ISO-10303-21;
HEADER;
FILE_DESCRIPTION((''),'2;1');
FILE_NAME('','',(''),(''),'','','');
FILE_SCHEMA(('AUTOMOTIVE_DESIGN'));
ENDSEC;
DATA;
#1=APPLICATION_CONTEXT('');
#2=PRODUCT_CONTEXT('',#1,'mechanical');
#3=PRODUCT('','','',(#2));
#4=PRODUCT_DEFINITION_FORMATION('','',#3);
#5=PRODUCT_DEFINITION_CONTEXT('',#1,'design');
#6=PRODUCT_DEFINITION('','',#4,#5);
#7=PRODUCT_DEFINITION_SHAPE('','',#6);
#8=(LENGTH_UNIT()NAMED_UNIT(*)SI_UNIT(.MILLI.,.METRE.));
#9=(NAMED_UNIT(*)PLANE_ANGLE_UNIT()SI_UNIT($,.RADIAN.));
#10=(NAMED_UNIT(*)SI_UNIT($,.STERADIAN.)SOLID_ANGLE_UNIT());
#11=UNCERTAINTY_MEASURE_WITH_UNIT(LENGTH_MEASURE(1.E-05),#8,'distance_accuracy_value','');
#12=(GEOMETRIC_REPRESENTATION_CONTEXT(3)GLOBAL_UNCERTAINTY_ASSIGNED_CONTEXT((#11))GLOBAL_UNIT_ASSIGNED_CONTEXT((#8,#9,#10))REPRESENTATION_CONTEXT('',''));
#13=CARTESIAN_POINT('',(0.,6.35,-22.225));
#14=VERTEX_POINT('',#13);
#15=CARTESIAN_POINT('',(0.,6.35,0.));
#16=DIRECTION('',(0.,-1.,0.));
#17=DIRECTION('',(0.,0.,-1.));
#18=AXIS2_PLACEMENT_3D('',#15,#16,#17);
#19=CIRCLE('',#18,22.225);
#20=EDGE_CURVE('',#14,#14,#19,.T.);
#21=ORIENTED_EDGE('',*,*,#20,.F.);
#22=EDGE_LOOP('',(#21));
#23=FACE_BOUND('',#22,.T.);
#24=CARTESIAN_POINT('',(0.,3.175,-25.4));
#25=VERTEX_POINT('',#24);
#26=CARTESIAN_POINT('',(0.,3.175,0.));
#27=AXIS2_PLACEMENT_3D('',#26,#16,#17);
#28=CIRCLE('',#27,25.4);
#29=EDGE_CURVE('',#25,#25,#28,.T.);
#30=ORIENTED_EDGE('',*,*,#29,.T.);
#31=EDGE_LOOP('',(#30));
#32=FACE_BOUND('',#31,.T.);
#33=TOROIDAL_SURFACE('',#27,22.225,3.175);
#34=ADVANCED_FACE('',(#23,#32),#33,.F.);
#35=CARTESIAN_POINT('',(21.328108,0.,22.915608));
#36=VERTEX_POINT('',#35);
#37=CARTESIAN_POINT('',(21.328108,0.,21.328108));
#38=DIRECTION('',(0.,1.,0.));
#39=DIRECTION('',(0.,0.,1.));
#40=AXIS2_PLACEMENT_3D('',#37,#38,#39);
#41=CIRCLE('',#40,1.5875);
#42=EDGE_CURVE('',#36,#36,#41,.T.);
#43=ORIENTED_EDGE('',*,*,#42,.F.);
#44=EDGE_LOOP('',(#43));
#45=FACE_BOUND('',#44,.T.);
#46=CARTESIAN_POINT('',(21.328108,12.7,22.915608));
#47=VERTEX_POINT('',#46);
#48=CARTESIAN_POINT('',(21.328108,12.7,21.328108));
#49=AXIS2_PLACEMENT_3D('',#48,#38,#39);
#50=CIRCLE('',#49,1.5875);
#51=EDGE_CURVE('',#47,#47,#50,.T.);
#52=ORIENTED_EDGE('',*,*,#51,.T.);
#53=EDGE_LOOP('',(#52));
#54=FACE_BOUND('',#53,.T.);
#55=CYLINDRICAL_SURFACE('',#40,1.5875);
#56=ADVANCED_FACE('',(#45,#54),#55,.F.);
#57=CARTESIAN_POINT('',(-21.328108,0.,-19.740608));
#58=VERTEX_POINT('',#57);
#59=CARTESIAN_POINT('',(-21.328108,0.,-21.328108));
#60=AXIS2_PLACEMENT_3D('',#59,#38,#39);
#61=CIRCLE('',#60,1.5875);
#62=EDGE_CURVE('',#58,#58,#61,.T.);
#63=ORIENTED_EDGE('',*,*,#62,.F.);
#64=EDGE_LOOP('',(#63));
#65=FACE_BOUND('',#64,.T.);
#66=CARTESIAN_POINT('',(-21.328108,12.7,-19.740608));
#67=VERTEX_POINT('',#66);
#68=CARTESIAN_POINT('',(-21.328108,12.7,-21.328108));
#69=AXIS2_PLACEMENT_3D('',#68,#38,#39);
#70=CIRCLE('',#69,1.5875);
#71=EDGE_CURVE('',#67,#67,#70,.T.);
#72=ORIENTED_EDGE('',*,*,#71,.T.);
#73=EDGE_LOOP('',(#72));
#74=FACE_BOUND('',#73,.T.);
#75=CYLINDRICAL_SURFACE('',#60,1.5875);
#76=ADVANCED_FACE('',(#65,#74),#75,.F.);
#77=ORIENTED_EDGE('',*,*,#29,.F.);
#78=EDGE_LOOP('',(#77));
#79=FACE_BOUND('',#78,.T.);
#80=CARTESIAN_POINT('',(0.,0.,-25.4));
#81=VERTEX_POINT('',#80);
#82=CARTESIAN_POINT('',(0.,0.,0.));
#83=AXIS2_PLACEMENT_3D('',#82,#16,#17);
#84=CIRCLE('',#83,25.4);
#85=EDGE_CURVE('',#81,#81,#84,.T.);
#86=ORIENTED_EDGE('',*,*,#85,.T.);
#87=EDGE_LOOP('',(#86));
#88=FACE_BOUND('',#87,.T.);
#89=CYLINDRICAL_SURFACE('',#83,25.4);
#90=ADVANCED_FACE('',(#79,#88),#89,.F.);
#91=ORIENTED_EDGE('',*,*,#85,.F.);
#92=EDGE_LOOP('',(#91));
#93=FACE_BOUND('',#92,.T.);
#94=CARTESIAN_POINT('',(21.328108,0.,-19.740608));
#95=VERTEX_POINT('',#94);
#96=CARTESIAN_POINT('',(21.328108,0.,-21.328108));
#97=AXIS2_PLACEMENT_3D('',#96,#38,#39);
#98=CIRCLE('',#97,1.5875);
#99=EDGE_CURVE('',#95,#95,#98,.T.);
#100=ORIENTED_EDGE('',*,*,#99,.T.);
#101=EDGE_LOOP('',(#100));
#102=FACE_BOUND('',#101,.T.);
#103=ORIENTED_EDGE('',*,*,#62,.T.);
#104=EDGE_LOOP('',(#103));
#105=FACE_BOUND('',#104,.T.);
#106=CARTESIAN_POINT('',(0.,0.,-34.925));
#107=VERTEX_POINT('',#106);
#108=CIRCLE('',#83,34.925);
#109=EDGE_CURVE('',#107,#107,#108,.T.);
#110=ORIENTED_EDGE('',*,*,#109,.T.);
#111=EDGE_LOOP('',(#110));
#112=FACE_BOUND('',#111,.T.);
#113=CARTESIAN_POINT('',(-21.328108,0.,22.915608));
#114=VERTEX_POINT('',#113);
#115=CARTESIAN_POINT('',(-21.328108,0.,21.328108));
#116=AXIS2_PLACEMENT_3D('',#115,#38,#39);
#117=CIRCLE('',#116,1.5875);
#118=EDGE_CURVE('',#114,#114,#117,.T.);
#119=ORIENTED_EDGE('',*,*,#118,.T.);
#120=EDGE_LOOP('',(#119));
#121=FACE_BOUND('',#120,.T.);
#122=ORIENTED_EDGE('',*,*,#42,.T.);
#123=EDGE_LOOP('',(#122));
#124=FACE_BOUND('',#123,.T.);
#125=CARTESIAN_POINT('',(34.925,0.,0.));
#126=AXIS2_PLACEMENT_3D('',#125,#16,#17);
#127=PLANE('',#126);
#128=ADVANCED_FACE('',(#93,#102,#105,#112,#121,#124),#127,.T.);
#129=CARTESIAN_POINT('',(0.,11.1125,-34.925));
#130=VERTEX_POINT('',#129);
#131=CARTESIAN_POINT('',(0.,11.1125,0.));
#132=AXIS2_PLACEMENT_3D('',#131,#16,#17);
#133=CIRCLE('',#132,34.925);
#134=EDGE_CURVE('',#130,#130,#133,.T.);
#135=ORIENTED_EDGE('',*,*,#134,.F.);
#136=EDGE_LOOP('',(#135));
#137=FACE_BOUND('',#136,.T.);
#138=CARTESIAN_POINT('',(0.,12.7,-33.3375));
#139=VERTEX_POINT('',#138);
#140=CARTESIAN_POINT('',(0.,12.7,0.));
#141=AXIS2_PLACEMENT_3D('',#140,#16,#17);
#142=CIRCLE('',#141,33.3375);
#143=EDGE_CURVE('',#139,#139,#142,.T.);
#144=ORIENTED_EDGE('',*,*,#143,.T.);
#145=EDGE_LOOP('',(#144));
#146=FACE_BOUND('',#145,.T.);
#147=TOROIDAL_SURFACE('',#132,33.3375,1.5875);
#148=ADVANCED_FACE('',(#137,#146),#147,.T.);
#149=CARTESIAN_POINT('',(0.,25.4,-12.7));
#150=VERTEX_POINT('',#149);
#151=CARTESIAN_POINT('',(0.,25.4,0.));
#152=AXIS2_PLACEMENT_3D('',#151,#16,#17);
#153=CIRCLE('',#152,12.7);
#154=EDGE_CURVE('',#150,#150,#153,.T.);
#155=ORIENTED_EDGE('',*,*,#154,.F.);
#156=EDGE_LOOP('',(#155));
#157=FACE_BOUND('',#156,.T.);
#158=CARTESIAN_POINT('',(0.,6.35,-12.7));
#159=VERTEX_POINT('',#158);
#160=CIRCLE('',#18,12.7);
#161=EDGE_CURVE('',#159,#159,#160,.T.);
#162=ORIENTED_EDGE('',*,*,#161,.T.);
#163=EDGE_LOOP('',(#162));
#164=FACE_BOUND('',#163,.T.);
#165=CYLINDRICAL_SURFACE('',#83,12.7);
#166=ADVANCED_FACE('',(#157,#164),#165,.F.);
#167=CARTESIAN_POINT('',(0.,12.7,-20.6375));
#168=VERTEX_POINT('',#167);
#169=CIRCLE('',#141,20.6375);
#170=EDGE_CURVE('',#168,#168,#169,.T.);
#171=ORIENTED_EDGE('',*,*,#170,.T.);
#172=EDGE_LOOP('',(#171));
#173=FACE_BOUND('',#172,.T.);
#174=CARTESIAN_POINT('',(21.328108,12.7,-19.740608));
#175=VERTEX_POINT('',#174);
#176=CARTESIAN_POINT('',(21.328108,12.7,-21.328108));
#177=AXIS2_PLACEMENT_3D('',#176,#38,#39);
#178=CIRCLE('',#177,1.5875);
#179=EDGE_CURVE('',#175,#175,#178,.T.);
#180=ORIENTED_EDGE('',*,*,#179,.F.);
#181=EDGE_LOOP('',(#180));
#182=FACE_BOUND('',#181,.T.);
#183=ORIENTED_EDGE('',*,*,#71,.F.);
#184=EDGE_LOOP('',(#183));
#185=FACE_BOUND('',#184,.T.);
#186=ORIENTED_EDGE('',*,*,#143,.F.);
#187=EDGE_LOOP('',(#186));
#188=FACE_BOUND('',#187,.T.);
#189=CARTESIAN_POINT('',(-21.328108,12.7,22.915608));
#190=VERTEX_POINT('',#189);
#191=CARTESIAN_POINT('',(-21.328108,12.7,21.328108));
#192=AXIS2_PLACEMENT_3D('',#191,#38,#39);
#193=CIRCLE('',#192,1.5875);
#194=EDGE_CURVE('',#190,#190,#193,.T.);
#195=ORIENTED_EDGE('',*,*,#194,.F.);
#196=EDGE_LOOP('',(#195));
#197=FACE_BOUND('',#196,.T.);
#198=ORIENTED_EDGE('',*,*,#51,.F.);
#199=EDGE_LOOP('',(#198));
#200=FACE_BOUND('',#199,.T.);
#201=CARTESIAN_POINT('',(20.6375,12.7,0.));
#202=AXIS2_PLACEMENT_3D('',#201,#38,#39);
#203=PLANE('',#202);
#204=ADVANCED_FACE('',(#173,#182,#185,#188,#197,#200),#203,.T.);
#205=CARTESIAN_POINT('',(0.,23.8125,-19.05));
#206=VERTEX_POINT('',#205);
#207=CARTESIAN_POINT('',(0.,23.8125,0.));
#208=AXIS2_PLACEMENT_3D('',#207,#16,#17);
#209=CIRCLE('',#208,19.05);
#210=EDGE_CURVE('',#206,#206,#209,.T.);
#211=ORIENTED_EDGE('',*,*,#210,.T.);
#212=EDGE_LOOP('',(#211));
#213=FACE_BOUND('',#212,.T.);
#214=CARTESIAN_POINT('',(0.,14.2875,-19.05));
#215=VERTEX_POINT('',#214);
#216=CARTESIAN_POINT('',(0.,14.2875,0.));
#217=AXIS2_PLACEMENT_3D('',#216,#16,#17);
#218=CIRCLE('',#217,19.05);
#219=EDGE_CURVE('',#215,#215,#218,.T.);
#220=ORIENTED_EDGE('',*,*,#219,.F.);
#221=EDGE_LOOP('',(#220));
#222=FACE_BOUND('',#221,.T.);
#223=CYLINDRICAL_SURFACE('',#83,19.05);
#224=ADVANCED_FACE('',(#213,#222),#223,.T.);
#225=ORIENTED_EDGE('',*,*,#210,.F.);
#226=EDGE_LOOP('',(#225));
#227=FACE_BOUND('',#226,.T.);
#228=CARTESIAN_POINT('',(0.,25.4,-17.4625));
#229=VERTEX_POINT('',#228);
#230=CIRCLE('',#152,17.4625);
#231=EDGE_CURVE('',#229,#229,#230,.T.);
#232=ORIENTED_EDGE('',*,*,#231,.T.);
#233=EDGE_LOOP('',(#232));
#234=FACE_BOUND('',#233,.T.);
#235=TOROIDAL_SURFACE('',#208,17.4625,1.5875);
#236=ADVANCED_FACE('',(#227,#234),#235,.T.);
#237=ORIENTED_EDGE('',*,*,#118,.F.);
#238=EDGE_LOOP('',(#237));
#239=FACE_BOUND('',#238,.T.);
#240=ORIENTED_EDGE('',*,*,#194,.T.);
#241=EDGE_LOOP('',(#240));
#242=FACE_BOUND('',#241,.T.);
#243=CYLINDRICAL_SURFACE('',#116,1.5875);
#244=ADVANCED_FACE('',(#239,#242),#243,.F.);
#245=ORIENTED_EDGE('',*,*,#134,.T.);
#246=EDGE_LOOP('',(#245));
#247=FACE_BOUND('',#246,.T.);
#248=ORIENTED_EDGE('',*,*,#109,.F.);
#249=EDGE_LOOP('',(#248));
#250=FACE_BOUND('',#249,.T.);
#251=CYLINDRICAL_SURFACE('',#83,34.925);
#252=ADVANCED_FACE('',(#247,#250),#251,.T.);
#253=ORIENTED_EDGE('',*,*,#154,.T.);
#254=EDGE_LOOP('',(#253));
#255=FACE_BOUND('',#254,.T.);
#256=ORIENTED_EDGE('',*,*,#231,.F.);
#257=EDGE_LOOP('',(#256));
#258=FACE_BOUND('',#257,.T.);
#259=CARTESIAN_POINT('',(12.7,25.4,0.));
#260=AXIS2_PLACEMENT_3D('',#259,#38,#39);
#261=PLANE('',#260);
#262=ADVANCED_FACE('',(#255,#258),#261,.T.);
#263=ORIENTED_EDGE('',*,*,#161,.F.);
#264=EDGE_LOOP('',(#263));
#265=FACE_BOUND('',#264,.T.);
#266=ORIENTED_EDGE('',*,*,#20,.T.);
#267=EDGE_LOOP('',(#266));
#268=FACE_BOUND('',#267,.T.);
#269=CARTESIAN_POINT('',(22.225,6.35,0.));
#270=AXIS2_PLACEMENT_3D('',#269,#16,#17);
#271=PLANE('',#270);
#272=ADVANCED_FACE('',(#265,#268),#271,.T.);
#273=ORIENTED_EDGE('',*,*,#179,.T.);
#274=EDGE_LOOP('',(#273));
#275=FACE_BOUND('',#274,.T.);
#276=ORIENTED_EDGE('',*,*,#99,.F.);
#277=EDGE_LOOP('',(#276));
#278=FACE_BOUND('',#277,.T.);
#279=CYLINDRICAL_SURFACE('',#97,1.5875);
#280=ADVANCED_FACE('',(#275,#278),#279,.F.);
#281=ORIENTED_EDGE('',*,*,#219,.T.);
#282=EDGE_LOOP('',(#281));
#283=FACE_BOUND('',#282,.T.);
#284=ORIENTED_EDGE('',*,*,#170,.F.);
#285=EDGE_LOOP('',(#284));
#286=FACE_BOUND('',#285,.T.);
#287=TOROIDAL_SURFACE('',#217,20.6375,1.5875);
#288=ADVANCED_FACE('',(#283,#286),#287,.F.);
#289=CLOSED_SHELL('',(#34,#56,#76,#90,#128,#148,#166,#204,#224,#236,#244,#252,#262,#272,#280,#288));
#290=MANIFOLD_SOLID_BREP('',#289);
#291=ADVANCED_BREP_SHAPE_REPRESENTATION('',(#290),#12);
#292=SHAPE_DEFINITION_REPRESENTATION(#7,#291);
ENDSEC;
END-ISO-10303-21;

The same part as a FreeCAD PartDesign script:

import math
import FreeCAD as App
import Part
import Sketcher
from FreeCAD import Vector
Q = App.Units.Quantity

doc = App.newDocument("Part")
body = doc.addObject("PartDesign::Body", "Body")

sketch1 = body.newObject("Sketcher::SketchObject", "Sketch")
sketch1.AttachmentSupport = (doc.getObject("XY_Plane"), [""])
sketch1.MapMode = "FlatFace"
sketch1.addGeometry(Part.LineSegment(Vector(17.5, 25.4, 0), Vector(12.7, 25.4, 0)), False)
sketch1.addGeometry(Part.LineSegment(Vector(12.7, 25.4, 0), Vector(12.7, 6.3, 0)), False)
sketch1.addGeometry(Part.LineSegment(Vector(12.7, 6.3, 0), Vector(22.2, 6.3, 0)), False)
sketch1.addGeometry(Part.ArcOfCircle(Part.Circle(Vector(22.2, 3.2, 0), Vector(0, 0, 1), 3.2), math.radians(0), math.radians(90)), False)
sketch1.addGeometry(Part.LineSegment(Vector(25.4, 3.2, 0), Vector(25.4, 0, 0)), False)
sketch1.addGeometry(Part.LineSegment(Vector(25.4, 0, 0), Vector(34.9, 0, 0)), False)
sketch1.addGeometry(Part.LineSegment(Vector(34.9, 0, 0), Vector(34.9, 11.1, 0)), False)
sketch1.addGeometry(Part.ArcOfCircle(Part.Circle(Vector(33.3, 11.1, 0), Vector(0, 0, 1), 1.6), math.radians(0), math.radians(90)), False)
sketch1.addGeometry(Part.LineSegment(Vector(33.3, 12.7, 0), Vector(20.6, 12.7, 0)), False)
sketch1.addGeometry(Part.ArcOfCircle(Part.Circle(Vector(20.6, 14.3, 0), Vector(0, 0, 1), 1.6), math.radians(180), math.radians(270)), False)
sketch1.addGeometry(Part.LineSegment(Vector(19.1, 14.3, 0), Vector(19.1, 23.8, 0)), False)
sketch1.addGeometry(Part.ArcOfCircle(Part.Circle(Vector(17.5, 23.8, 0), Vector(0, 0, 1), 1.6), math.radians(0), math.radians(90)), False)
sketch1.addConstraint(Sketcher.Constraint("Coincident", 0, 2, 1, 1))
sketch1.addConstraint(Sketcher.Constraint("Coincident", 1, 2, 2, 1))
sketch1.addConstraint(Sketcher.Constraint("Tangent", 2, 2, 3, 2))
sketch1.addConstraint(Sketcher.Constraint("Tangent", 3, 1, 4, 1))
sketch1.addConstraint(Sketcher.Constraint("Coincident", 4, 2, 5, 1))
sketch1.addConstraint(Sketcher.Constraint("Coincident", 5, 2, 6, 1))
sketch1.addConstraint(Sketcher.Constraint("Tangent", 6, 2, 7, 1))
sketch1.addConstraint(Sketcher.Constraint("Tangent", 7, 2, 8, 1))
sketch1.addConstraint(Sketcher.Constraint("Tangent", 8, 2, 9, 2))
sketch1.addConstraint(Sketcher.Constraint("Tangent", 9, 1, 10, 1))
sketch1.addConstraint(Sketcher.Constraint("Tangent", 10, 2, 11, 1))
sketch1.addConstraint(Sketcher.Constraint("Tangent", 11, 2, 0, 1))
sketch1.addConstraint(Sketcher.Constraint("Horizontal", 0))
sketch1.addConstraint(Sketcher.Constraint("Vertical", 1))
sketch1.addConstraint(Sketcher.Constraint("Horizontal", 2))
sketch1.addConstraint(Sketcher.Constraint("Vertical", 4))
sketch1.addConstraint(Sketcher.Constraint("Horizontal", 5))
sketch1.addConstraint(Sketcher.Constraint("Vertical", 6))
sketch1.addConstraint(Sketcher.Constraint("Horizontal", 8))
sketch1.addConstraint(Sketcher.Constraint("Vertical", 10))
sketch1.addConstraint(Sketcher.Constraint("Equal", 7, 9))
sketch1.addConstraint(Sketcher.Constraint("Equal", 9, 11))
sketch1.addConstraint(Sketcher.Constraint("PointOnObject", 4, 2, -1))
sketch1.addConstraint(Sketcher.Constraint("Equal", 2, 5))
sketch1.addConstraint(Sketcher.Constraint("Equal", 5, 10))
sketch1.addConstraint(Sketcher.Constraint("DistanceX", 8, 2, 8, 1, Q("0.5 in")))
sketch1.addConstraint(Sketcher.Constraint("DistanceY", -1, 1, 0, 2, Q("1 in")))
sketch1.addConstraint(Sketcher.Constraint("DistanceX", -1, 1, 3, 1, Q("1 in")))
sketch1.addConstraint(Sketcher.Constraint("Radius", 3, Q("0.125 in")))
sketch1.addConstraint(Sketcher.Constraint("Radius", 7, Q("0.0625 in")))
sketch1.addConstraint(Sketcher.Constraint("DistanceY", 1, 2, 1, 1, Q("0.75 in")))
sketch1.addConstraint(Sketcher.Constraint("DistanceX", -1, 1, 0, 2, Q("0.5 in")))
revolution = body.newObject("PartDesign::Revolution", "Revolution")
revolution.Profile = sketch1
revolution.ReferenceAxis = (sketch1, ["V_Axis"])
revolution.Angle = 360

sketch2 = body.newObject("Sketcher::SketchObject", "Sketch001")
sketch2.AttachmentSupport = (doc.getObject("XZ_Plane"), [""])
sketch2.MapMode = "FlatFace"
sketch2.AttachmentOffset = App.Placement(Vector(0, 0, -0.5 * 25.4), App.Rotation())
sketch2.addGeometry(Part.Circle(Vector(-21.3, -21.3, 0), Vector(0, 0, 1), 1.6), False)
sketch2.addGeometry(Part.Circle(Vector(21.3, -21.3, 0), Vector(0, 0, 1), 1.6), False)
sketch2.addGeometry(Part.Circle(Vector(21.3, 21.3, 0), Vector(0, 0, 1), 1.6), False)
sketch2.addGeometry(Part.Circle(Vector(-21.3, 21.3, 0), Vector(0, 0, 1), 1.6), False)
sketch2.addConstraint(Sketcher.Constraint("Equal", 0, 1))
sketch2.addConstraint(Sketcher.Constraint("Equal", 1, 2))
sketch2.addConstraint(Sketcher.Constraint("Equal", 2, 3))
sketch2.addConstraint(Sketcher.Constraint("Symmetric", 0, 3, 2, 3, -1, 1))
sketch2.addConstraint(Sketcher.Constraint("Symmetric", 1, 3, 3, 3, -1, 1))
sketch2.addConstraint(Sketcher.Constraint("Symmetric", 0, 3, 1, 3, -2))
sketch2.addConstraint(Sketcher.Constraint("Diameter", 0, Q("0.125 in")))
sketch2.addConstraint(Sketcher.Constraint("DistanceX", 0, 3, -1, 1, Q("21.328108 mm")))
sketch2.addConstraint(Sketcher.Constraint("DistanceY", 0, 3, -1, 1, Q("21.328108 mm")))
pocket1 = body.newObject("PartDesign::Pocket", "Pocket")
pocket1.Profile = sketch2
pocket1.Type = "ThroughAll"
pocket1.Reversed = True

doc.recompute()
